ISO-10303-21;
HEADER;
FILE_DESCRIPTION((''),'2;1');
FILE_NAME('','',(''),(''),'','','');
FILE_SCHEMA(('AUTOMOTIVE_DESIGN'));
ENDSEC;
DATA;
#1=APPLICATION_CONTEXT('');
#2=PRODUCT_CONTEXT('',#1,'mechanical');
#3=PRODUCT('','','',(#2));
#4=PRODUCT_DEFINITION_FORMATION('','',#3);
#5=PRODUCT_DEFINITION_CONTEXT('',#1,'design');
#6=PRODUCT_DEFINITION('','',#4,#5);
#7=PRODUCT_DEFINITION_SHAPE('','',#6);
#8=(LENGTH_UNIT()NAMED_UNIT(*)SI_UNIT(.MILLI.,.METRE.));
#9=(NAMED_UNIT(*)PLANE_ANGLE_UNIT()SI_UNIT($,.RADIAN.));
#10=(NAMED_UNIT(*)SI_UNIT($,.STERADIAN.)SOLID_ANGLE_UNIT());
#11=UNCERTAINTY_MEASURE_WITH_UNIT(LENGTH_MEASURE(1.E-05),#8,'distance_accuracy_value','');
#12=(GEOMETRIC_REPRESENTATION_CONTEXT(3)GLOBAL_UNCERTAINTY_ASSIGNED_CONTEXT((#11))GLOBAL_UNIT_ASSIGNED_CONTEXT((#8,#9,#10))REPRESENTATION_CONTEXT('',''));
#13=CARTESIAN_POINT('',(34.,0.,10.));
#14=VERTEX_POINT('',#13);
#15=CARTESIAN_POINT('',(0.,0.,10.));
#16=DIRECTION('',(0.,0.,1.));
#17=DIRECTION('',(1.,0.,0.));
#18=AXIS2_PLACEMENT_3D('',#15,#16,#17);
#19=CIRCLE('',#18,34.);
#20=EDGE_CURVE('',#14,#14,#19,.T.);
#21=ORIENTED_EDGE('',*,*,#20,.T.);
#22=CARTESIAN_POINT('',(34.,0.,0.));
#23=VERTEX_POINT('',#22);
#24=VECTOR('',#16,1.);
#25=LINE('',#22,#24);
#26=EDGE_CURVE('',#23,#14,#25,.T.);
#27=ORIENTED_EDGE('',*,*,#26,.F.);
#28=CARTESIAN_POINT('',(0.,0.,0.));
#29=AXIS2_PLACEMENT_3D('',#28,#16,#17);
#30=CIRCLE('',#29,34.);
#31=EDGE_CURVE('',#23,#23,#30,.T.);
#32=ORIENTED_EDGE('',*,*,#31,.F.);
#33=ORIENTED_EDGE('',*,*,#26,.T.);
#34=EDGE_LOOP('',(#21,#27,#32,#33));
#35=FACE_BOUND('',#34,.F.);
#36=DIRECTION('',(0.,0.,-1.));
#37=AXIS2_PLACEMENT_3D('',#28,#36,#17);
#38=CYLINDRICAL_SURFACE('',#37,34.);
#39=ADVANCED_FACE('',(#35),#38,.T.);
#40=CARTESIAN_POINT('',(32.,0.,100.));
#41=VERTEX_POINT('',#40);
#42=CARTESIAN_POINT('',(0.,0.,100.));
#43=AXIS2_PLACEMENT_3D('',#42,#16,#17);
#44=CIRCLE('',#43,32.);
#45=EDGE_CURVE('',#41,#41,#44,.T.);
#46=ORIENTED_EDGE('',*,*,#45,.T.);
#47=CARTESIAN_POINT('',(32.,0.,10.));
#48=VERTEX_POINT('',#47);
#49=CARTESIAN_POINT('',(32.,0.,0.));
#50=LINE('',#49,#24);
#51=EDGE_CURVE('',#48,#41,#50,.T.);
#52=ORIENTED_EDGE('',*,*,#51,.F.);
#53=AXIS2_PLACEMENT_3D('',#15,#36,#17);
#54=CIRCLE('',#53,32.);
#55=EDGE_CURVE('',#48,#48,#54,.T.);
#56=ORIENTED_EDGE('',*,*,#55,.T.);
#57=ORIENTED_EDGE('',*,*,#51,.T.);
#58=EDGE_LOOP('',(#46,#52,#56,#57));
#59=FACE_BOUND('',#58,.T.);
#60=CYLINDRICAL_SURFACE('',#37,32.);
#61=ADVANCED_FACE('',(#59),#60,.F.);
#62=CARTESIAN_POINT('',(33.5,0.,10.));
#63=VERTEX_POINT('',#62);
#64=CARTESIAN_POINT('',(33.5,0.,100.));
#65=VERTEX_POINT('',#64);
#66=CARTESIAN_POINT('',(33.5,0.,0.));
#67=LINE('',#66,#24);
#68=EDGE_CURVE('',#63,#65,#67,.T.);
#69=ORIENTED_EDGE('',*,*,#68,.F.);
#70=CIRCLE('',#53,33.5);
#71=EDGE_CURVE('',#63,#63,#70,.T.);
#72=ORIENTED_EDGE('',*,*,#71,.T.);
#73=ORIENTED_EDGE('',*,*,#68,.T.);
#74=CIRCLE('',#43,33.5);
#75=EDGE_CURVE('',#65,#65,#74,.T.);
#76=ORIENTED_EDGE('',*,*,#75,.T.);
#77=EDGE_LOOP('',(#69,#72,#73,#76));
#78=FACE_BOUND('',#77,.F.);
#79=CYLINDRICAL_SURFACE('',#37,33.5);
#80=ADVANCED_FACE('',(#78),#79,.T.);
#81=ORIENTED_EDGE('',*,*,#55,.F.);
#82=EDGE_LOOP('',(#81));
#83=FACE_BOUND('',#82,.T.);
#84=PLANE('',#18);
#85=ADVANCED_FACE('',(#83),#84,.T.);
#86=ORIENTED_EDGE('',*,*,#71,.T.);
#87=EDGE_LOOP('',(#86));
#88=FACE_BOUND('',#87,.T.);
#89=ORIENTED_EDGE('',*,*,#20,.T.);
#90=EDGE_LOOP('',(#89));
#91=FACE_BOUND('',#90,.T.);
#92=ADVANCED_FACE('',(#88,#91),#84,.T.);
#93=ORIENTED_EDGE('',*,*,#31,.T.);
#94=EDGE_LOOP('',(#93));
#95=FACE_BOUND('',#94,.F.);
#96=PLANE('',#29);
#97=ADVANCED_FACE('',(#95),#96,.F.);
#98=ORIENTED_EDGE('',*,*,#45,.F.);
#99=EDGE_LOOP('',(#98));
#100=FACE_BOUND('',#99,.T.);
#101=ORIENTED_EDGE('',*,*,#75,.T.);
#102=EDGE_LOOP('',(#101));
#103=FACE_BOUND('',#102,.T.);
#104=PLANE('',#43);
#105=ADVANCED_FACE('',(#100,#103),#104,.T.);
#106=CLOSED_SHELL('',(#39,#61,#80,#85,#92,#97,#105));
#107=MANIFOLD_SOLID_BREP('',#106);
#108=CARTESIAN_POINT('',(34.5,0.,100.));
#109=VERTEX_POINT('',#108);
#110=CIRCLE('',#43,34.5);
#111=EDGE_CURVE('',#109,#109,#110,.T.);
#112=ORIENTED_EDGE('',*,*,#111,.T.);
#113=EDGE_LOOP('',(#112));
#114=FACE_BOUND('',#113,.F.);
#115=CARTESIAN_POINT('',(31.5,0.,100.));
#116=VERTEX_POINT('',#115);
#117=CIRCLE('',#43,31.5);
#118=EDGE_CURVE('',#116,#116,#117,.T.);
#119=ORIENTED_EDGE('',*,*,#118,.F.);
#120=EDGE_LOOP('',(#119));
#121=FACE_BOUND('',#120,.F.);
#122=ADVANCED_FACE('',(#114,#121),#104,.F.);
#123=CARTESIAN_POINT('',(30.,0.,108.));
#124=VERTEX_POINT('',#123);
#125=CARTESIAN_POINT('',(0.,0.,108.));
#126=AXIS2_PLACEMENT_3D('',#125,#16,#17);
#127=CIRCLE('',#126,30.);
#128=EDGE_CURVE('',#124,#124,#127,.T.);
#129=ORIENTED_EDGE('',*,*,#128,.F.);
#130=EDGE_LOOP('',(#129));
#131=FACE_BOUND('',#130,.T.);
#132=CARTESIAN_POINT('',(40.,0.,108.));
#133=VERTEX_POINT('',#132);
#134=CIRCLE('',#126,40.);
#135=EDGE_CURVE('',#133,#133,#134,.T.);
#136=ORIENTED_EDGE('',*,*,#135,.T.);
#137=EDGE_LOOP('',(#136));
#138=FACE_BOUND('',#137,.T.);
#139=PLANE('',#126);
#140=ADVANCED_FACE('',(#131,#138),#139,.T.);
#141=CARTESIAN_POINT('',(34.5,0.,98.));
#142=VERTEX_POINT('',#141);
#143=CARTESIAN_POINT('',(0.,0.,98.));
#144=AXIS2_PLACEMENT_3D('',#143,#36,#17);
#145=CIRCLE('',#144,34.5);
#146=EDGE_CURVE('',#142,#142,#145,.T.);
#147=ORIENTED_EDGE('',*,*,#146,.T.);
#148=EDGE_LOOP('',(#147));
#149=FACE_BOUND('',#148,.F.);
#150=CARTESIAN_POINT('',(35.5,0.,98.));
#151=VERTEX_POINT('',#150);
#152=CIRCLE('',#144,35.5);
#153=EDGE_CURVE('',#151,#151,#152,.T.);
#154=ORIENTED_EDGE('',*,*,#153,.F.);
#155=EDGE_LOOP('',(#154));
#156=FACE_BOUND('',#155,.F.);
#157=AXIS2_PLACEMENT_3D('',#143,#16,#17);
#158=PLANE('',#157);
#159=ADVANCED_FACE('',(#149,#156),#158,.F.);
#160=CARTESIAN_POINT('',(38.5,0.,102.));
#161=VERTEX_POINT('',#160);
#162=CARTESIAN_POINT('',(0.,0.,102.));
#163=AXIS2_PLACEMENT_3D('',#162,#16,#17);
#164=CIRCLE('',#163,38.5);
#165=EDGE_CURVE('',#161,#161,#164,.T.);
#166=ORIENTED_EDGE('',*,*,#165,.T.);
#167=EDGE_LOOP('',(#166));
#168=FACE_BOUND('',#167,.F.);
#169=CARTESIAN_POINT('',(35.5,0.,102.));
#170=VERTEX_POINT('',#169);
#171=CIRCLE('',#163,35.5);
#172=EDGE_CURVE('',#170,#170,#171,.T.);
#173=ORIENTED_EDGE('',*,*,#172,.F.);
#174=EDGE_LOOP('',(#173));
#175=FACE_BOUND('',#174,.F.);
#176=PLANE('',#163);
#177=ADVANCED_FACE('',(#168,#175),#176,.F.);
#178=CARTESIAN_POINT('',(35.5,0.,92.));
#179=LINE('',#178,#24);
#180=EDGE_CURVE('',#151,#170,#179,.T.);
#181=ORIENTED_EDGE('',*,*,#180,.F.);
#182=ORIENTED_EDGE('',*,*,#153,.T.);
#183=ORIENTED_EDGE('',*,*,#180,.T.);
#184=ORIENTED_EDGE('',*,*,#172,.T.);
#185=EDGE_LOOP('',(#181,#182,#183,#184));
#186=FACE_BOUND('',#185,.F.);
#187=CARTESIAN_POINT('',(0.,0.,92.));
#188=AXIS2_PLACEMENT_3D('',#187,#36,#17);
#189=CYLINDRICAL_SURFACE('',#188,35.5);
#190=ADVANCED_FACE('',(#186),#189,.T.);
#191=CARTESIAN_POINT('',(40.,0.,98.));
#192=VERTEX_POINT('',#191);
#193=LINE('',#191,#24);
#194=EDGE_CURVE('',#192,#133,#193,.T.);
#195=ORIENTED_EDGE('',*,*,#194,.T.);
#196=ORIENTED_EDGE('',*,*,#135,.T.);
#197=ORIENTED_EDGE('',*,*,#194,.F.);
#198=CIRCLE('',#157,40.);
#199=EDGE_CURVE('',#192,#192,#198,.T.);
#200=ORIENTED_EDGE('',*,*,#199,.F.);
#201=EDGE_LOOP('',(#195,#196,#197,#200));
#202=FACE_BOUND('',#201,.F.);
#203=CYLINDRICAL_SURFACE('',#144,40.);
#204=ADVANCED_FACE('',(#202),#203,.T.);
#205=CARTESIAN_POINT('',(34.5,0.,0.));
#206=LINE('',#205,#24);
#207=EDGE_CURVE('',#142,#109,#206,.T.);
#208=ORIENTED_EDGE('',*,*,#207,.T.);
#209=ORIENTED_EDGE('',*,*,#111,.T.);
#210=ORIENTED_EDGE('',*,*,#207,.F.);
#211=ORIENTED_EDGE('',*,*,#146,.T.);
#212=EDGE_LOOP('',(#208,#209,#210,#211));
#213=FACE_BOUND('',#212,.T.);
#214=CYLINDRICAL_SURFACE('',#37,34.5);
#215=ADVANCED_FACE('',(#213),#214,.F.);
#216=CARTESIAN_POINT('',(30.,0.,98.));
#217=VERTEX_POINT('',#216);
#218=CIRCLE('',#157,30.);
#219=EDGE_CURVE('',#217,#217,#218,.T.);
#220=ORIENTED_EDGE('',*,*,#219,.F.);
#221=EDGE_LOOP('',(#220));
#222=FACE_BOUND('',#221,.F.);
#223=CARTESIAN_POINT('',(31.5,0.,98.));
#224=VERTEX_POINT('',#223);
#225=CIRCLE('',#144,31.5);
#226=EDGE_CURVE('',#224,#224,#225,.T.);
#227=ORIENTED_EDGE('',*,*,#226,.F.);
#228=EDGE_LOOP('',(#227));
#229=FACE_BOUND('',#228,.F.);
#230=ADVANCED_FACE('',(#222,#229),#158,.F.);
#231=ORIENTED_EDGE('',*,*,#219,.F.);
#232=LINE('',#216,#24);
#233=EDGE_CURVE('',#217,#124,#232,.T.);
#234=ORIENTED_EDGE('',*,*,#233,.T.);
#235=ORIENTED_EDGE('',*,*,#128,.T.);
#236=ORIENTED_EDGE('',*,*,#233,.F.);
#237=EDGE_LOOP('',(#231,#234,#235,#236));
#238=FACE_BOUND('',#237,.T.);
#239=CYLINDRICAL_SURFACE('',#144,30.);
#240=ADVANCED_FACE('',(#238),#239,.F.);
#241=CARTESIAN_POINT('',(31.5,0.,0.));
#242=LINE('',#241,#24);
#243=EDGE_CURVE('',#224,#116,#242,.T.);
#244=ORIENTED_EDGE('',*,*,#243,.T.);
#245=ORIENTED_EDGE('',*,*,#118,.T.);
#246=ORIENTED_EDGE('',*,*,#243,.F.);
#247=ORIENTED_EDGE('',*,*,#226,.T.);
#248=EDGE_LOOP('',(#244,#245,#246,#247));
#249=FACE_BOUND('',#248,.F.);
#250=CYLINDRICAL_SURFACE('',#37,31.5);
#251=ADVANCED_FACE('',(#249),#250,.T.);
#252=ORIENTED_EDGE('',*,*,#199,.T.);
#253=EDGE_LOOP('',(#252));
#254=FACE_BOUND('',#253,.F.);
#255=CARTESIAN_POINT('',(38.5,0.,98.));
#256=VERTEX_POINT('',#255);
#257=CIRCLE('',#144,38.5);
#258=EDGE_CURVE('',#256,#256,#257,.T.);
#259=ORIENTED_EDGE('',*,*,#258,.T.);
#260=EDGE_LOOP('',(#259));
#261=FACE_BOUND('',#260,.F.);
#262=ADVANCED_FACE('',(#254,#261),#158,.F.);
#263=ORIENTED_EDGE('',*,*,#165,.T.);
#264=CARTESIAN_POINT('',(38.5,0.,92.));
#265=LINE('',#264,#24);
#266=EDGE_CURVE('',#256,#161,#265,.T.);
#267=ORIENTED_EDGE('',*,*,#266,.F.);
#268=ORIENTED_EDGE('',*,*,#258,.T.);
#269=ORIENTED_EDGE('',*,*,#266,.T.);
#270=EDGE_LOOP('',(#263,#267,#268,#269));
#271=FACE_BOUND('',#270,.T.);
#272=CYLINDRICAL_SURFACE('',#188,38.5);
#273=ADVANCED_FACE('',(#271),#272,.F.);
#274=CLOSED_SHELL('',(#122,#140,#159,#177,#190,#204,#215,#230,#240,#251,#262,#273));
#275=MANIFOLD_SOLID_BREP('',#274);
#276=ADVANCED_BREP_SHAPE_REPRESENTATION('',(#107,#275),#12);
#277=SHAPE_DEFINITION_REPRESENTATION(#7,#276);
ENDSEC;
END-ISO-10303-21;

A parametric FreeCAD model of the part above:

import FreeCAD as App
import Part
import Sketcher

doc = App.newDocument("Part")
body = doc.addObject("PartDesign::Body", "Body")

# Sketch on XY plane
sketch1 = body.newObject("Sketcher::SketchObject", "Sketch")
sketch1.AttachmentSupport = (doc.getObject("XY_Plane"), [""])
sketch1.MapMode = "FlatFace"
sketch1.addGeometry(Part.Circle(App.Vector(0, 0, 0), App.Vector(0, 0, 1), 34), False)
sketch1.addConstraint([
    Sketcher.Constraint("Coincident", 0, 3, -1, 1),
    Sketcher.Constraint("Diameter", 0, 68.0),
])
pad1 = body.newObject("PartDesign::Pad", "Pad")
pad1.Profile = sketch1
pad1.Length = 10
body2 = doc.addObject("PartDesign::Body", "Body001")

# Sketch on XY plane
sketch2 = body2.newObject("Sketcher::SketchObject", "Sketch001")
sketch2.AttachmentSupport = (doc.getObject("XY_Plane001"), [""])
sketch2.MapMode = "FlatFace"
sketch2.addGeometry([
    Part.Circle(App.Vector(0, 0, 0), App.Vector(0, 0, 1), 34),
    Part.Circle(App.Vector(0, 0, 0), App.Vector(0, 0, 1), 32),
], False)
sketch2.addConstraint([
    Sketcher.Constraint("Coincident", 0, 3, -1, 1),
    Sketcher.Constraint("Coincident", 1, 3, -1, 1),
    Sketcher.Constraint("Diameter", 0, 67.0),
    Sketcher.Constraint("Diameter", 1, 64.0),
])
pad2 = body2.newObject("PartDesign::Pad", "Pad001")
pad2.Profile = sketch2
pad2.Length = 100
doc.recompute()

boolean = body2.newObject("PartDesign::Boolean", "Boolean")
boolean.Type = "Fuse"
boolean.addObjects([body])
body3 = doc.addObject("PartDesign::Body", "Body002")

# Sketch on XY plane
sketch3 = body3.newObject("Sketcher::SketchObject", "Sketch002")
sketch3.AttachmentSupport = (doc.getObject("XY_Plane002"), [""])
sketch3.MapMode = "FlatFace"
sketch3.AttachmentOffset = App.Placement(App.Vector(0, 0, 92), App.Rotation())
sketch3.addGeometry([
    Part.Circle(App.Vector(0, 0, 0), App.Vector(0, 0, 1), 38),
    Part.Circle(App.Vector(0, 0, 0), App.Vector(0, 0, 1), 36),
], False)
sketch3.addConstraint([
    Sketcher.Constraint("Coincident", 0, 3, -1, 1),
    Sketcher.Constraint("Coincident", 1, 3, -1, 1),
    Sketcher.Constraint("Diameter", 0, 77.0),
    Sketcher.Constraint("Diameter", 1, 71.0),
])
pad3 = body3.newObject("PartDesign::Pad", "Pad002")
pad3.Profile = sketch3
pad3.Length = 10
body4 = doc.addObject("PartDesign::Body", "Body003")

# Sketch on XY plane
sketch4 = body4.newObject("Sketcher::SketchObject", "Sketch003")
sketch4.AttachmentSupport = (doc.getObject("XY_Plane003"), [""])
sketch4.MapMode = "FlatFace"
sketch4.addGeometry([
    Part.Circle(App.Vector(0, 0, 0), App.Vector(0, 0, 1), 34),
    Part.Circle(App.Vector(0, 0, 0), App.Vector(0, 0, 1), 32),
], False)
sketch4.addConstraint([
    Sketcher.Constraint("Coincident", 0, 3, -1, 1),
    Sketcher.Constraint("Coincident", 1, 3, -1, 1),
    Sketcher.Constraint("Diameter", 0, 69.0),
    Sketcher.Constraint("Diameter", 1, 63.0),
])
pad4 = body4.newObject("PartDesign::Pad", "Pad003")
pad4.Profile = sketch4
pad4.Length = 100
body5 = doc.addObject("PartDesign::Body", "Body004")

# Sketch on XY plane
sketch5 = body5.newObject("Sketcher::SketchObject", "Sketch004")
sketch5.AttachmentSupport = (doc.getObject("XY_Plane004"), [""])
sketch5.MapMode = "FlatFace"
sketch5.AttachmentOffset = App.Placement(App.Vector(0, 0, 98), App.Rotation())
sketch5.addGeometry([
    Part.Circle(App.Vector(0, 0, 0), App.Vector(0, 0, 1), 40),
    Part.Circle(App.Vector(0, 0, 0), App.Vector(0, 0, 1), 30),
], False)
sketch5.addConstraint([
    Sketcher.Constraint("Coincident", 0, 3, -1, 1),
    Sketcher.Constraint("Coincident", 1, 3, -1, 1),
    Sketcher.Constraint("Diameter", 0, 80.0),
    Sketcher.Constraint("Diameter", 1, 60.0),
])
pad5 = body5.newObject("PartDesign::Pad", "Pad004")
pad5.Profile = sketch5
pad5.Length = 10
doc.recompute()

boolean2 = body5.newObject("PartDesign::Boolean", "Boolean001")
boolean2.Type = "Cut"
boolean2.addObjects([body4])
doc.recompute()

boolean3 = body5.newObject("PartDesign::Boolean", "Boolean002")
boolean3.Type = "Cut"
boolean3.addObjects([body3])

doc.recompute()
